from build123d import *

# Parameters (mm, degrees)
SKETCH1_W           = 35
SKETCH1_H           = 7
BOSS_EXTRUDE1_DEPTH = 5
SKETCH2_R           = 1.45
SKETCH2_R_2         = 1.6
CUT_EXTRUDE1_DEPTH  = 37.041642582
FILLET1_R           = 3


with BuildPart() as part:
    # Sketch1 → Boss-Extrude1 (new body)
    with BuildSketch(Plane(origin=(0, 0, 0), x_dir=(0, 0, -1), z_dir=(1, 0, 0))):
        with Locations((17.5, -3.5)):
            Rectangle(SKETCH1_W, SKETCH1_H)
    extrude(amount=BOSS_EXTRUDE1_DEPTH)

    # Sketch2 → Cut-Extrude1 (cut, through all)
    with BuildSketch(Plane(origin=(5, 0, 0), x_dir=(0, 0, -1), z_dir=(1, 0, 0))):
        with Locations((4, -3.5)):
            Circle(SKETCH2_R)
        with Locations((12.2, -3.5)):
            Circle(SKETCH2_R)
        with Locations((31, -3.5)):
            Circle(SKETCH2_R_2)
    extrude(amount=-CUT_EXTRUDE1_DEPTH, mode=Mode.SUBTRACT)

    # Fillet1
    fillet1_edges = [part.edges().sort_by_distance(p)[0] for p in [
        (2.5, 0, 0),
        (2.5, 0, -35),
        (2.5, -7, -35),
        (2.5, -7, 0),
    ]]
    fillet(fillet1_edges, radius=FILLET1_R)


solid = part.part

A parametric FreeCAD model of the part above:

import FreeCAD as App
import Part
import Sketcher
from FreeCAD import Vector
Q = App.Units.Quantity


def edges_at(feature, points):
    """Names of the edges that pass closest to the given points."""
    edges = feature.Shape.Edges
    near = lambda p: min(range(len(edges)), key=lambda i: edges[i].distToShape(Part.Vertex(*p))[0])
    return sorted({f"Edge{near(p) + 1}" for p in points})


def add_polygon(sketch, points):
    """Adds a closed chain of lines whose ends are joined by coincident constraints."""
    first, n = sketch.GeometryCount, len(points)
    for a, b in zip(points, points[1:] + points[:1]):
        sketch.addGeometry(Part.LineSegment(App.Vector(*a, 0), App.Vector(*b, 0)), False)
    for i in range(n):
        sketch.addConstraint(Sketcher.Constraint("Coincident", first + i, 2, first + (i + 1) % n, 1))

doc = App.newDocument("Part")
body = doc.addObject("PartDesign::Body", "Body")

# Sketch on YZ plane
sketch1 = body.newObject("Sketcher::SketchObject", "Sketch")
sketch1.AttachmentSupport = (doc.getObject("YZ_Plane"), [""])
sketch1.MapMode = "FlatFace"
add_polygon(sketch1, [(0, 0), (-7, 0), (-7, -35), (0, -35)])  # lines 0-3
sketch1.addConstraint([
    Sketcher.Constraint("Horizontal", 0),
    Sketcher.Constraint("Vertical", 1),
    Sketcher.Constraint("Horizontal", 2),
    Sketcher.Constraint("Vertical", 3),
    Sketcher.Constraint("Coincident", 3, 2, -1, 1),
    Sketcher.Constraint("DistanceX", 0, 2, 0, 1, Q("7 mm")),
    Sketcher.Constraint("DistanceY", 1, 2, 1, 1, Q("35 mm")),
])
pad1 = body.newObject("PartDesign::Pad", "Pad")
pad1.Profile = sketch1
pad1.Length = 5

# Sketch on YZ plane
sketch2 = body.newObject("Sketcher::SketchObject", "Sketch001")
sketch2.AttachmentSupport = (doc.getObject("YZ_Plane"), [""])
sketch2.MapMode = "FlatFace"
sketch2.AttachmentOffset = App.Placement(Vector(0, 0, 5), App.Rotation())
sketch2.addGeometry([
    Part.Circle(Vector(-3.5, -4, 0), Vector(0, 0, 1), 1.4),
    Part.Circle(Vector(-3.5, -12.2, 0), Vector(0, 0, 1), 1.4),
    Part.Circle(Vector(-3.5, -31, 0), Vector(0, 0, 1), 1.6),
], False)
sketch2.addConstraint([
    Sketcher.Constraint("Equal", 0, 1),
    Sketcher.Constraint("Vertical", 0, 3, 1, 3),
    Sketcher.Constraint("Vertical", 1, 3, 2, 3),
    Sketcher.Constraint("Diameter", 0, Q("2.9 mm")),
    Sketcher.Constraint("Diameter", 2, Q("3.2 mm")),
    Sketcher.Constraint("DistanceY", 0, 3, -1, 1, Q("4 mm")),
    Sketcher.Constraint("DistanceY", 2, 3, -1, 1, Q("31 mm")),
    Sketcher.Constraint("DistanceX", 0, 3, -1, 1, Q("3.5 mm")),
    Sketcher.Constraint("DistanceY", 1, 3, -1, 1, Q("12.2 mm")),
])
pocket1 = body.newObject("PartDesign::Pocket", "Pocket")
pocket1.Profile = sketch2
pocket1.Type = "ThroughAll"
doc.recompute()

fillet = body.newObject("PartDesign::Fillet", "Fillet")
fillet.Base = (pocket1, edges_at(pocket1, [
    (2.5, 0, 0),
    (2.5, 0, -35),
    (2.5, -7, -35),
    (2.5, -7, 0),
]))
fillet.Radius = 3

doc.recompute()
